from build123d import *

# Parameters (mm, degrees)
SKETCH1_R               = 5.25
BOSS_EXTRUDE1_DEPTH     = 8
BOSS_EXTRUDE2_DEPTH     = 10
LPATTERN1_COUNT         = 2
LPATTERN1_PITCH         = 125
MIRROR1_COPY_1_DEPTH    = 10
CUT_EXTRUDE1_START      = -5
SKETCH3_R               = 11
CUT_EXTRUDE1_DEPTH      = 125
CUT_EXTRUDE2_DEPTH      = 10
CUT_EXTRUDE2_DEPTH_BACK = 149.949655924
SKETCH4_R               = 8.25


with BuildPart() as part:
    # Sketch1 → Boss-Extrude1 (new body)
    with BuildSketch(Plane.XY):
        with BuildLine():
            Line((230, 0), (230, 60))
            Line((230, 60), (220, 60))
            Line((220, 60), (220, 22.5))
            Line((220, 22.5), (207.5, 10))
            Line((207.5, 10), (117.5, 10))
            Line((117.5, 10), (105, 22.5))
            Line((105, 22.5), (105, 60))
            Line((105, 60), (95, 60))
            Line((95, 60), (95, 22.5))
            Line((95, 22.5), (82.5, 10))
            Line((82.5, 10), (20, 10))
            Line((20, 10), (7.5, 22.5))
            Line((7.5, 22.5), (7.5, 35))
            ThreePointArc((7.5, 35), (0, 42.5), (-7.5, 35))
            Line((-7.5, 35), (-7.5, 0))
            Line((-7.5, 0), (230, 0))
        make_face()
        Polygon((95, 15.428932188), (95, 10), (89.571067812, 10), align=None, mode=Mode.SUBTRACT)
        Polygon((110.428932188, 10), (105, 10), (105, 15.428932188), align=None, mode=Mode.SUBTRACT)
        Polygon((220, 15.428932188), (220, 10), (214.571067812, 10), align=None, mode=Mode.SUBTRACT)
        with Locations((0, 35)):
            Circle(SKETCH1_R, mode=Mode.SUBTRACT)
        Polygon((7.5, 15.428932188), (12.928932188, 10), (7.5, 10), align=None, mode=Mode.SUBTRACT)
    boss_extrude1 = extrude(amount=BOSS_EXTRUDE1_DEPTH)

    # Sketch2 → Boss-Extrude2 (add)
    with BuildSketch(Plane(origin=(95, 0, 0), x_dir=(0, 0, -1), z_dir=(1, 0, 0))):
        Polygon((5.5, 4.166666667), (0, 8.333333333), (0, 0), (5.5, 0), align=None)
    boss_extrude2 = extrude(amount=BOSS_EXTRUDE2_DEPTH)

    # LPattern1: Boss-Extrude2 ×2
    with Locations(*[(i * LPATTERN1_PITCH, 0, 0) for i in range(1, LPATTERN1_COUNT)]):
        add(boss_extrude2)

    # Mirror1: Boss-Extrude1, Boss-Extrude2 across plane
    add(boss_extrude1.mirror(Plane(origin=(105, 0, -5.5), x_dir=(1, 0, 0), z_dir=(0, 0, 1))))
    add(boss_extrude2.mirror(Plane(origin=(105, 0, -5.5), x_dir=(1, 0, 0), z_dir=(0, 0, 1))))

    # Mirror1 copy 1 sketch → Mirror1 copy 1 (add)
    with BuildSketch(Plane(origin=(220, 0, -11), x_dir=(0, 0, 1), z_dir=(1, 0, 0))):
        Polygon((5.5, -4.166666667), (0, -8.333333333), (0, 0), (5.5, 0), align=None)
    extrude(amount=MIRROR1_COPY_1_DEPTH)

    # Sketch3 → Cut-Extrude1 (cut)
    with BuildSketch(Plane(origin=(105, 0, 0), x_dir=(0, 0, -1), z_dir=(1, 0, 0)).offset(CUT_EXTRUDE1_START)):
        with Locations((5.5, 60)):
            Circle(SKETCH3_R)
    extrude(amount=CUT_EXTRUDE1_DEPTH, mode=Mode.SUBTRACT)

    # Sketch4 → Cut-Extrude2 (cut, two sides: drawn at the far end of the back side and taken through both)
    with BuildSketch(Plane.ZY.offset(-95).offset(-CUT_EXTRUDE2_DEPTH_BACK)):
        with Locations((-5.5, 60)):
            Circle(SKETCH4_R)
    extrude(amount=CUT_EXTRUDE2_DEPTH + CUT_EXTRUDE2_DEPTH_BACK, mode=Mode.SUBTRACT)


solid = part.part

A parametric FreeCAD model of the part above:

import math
import FreeCAD as App
import Part
import Sketcher
Q = App.Units.Quantity


def add_polygon(sketch, points):
    """Adds a closed chain of lines whose ends are joined by coincident constraints."""
    first, n = sketch.GeometryCount, len(points)
    for a, b in zip(points, points[1:] + points[:1]):
        sketch.addGeometry(Part.LineSegment(App.Vector(*a, 0), App.Vector(*b, 0)), False)
    for i in range(n):
        sketch.addConstraint(Sketcher.Constraint("Coincident", first + i, 2, first + (i + 1) % n, 1))

doc = App.newDocument("Part")
params = doc.addObject("Spreadsheet::Sheet", "Params")
for row, (alias, value) in enumerate([
    ("sketch1_diameter", "10.5 mm"),
    ("sketch1_radius", "7.5 mm"),
    ("sketch1_width", "10 mm"),
    ("sketch1_width2", "90 mm"),
    ("sketch1_height", "60 mm"),
    ("pad1_length", "8 mm"),
    ("sketch2_height", "5.5 mm"),
    ("pad2_length", "10 mm"),
    ("linearpattern_pitch", "125 mm"),
    ("sketch3_height", "5.5 mm"),
    ("pad3_length", "10 mm"),
    ("sketch4_diameter", "22 mm"),
    ("pocket1_length", "125 mm"),
    ("sketch5_diameter", "16.5 mm"),
], start=1):
    params.set(f"A{row}", alias)
    params.set(f"B{row}", "=" + value)
    params.setAlias(f"B{row}", alias)

body = doc.addObject("PartDesign::Body", "Body")

sketch1 = doc.addObject("Sketcher::SketchObject", "Sketch")
body.addObject(sketch1)
sketch1.AttachmentSupport = (doc.XY_Plane, [""])
sketch1.MapMode = "FlatFace"
sketch1.addGeometry(Part.LineSegment(App.Vector(230, 0, 0), App.Vector(230, 60, 0)), False)
sketch1.addGeometry(Part.LineSegment(App.Vector(230, 60, 0), App.Vector(220, 60, 0)), False)
sketch1.addGeometry(Part.LineSegment(App.Vector(220, 60, 0), App.Vector(220, 22.5, 0)), False)
sketch1.addGeometry(Part.LineSegment(App.Vector(220, 22.5, 0), App.Vector(207.5, 10, 0)), False)
sketch1.addGeometry(Part.LineSegment(App.Vector(207.5, 10, 0), App.Vector(117.5, 10, 0)), False)
sketch1.addGeometry(Part.LineSegment(App.Vector(117.5, 10, 0), App.Vector(105, 22.5, 0)), False)
sketch1.addGeometry(Part.LineSegment(App.Vector(105, 22.5, 0), App.Vector(105, 60, 0)), False)
sketch1.addGeometry(Part.LineSegment(App.Vector(105, 60, 0), App.Vector(95, 60, 0)), False)
sketch1.addGeometry(Part.LineSegment(App.Vector(95, 60, 0), App.Vector(95, 22.5, 0)), False)
sketch1.addGeometry(Part.LineSegment(App.Vector(95, 22.5, 0), App.Vector(82.5, 10, 0)), False)
sketch1.addGeometry(Part.LineSegment(App.Vector(82.5, 10, 0), App.Vector(20, 10, 0)), False)
sketch1.addGeometry(Part.LineSegment(App.Vector(20, 10, 0), App.Vector(7.5, 22.5, 0)), False)
sketch1.addGeometry(Part.LineSegment(App.Vector(7.5, 22.5, 0), App.Vector(7.5, 35, 0)), False)
sketch1.addGeometry(Part.ArcOfCircle(Part.Circle(App.Vector(0, 35, 0), App.Vector(0, 0, 1), 7.5), math.radians(0), math.radians(180)), False)
sketch1.addGeometry(Part.LineSegment(App.Vector(-7.5, 35, 0), App.Vector(-7.5, 0, 0)), False)
sketch1.addGeometry(Part.LineSegment(App.Vector(-7.5, 0, 0), App.Vector(230, 0, 0)), False)
add_polygon(sketch1, [(7.5, 10), (7.5, 15.428932), (12.928932, 10)])
add_polygon(sketch1, [(89.571068, 10), (95, 15.428932), (95, 10)])
add_polygon(sketch1, [(105, 15.428932), (110.428932, 10), (105, 10)])
add_polygon(sketch1, [(214.571068, 10), (220, 15.428932), (220, 10)])
sketch1.addGeometry(Part.Circle(App.Vector(0, 35, 0), App.Vector(0, 0, 1), 5.25), False)
sketch1.addConstraint(Sketcher.Constraint("Coincident", 0, 2, 1, 1))
sketch1.addConstraint(Sketcher.Constraint("Coincident", 1, 2, 2, 1))
sketch1.addConstraint(Sketcher.Constraint("Coincident", 2, 2, 3, 1))
sketch1.addConstraint(Sketcher.Constraint("Coincident", 3, 2, 4, 1))
sketch1.addConstraint(Sketcher.Constraint("Coincident", 4, 2, 5, 1))
sketch1.addConstraint(Sketcher.Constraint("Coincident", 5, 2, 6, 1))
sketch1.addConstraint(Sketcher.Constraint("Coincident", 6, 2, 7, 1))
sketch1.addConstraint(Sketcher.Constraint("Coincident", 7, 2, 8, 1))
sketch1.addConstraint(Sketcher.Constraint("Coincident", 8, 2, 9, 1))
sketch1.addConstraint(Sketcher.Constraint("Coincident", 9, 2, 10, 1))
sketch1.addConstraint(Sketcher.Constraint("Coincident", 10, 2, 11, 1))
sketch1.addConstraint(Sketcher.Constraint("Coincident", 11, 2, 12, 1))
sketch1.addConstraint(Sketcher.Constraint("Tangent", 12, 2, 13, 1))
sketch1.addConstraint(Sketcher.Constraint("Tangent", 13, 2, 14, 1))
sketch1.addConstraint(Sketcher.Constraint("Coincident", 14, 2, 15, 1))
sketch1.addConstraint(Sketcher.Constraint("Coincident", 15, 2, 0, 1))
sketch1.addConstraint(Sketcher.Constraint("Vertical", 0))
sketch1.addConstraint(Sketcher.Constraint("Horizontal", 1))
sketch1.addConstraint(Sketcher.Constraint("Vertical", 2))
sketch1.addConstraint(Sketcher.Constraint("Horizontal", 4))
sketch1.addConstraint(Sketcher.Constraint("Vertical", 6))
sketch1.addConstraint(Sketcher.Constraint("Horizontal", 7))
sketch1.addConstraint(Sketcher.Constraint("Vertical", 8))
sketch1.addConstraint(Sketcher.Constraint("Horizontal", 10))
sketch1.addConstraint(Sketcher.Constraint("Vertical", 12))
sketch1.addConstraint(Sketcher.Constraint("Vertical", 14))
sketch1.addConstraint(Sketcher.Constraint("Horizontal", 15))
sketch1.addConstraint(Sketcher.Constraint("Vertical", 16))
sketch1.addConstraint(Sketcher.Constraint("Horizontal", 18))
sketch1.addConstraint(Sketcher.Constraint("Vertical", 20))
sketch1.addConstraint(Sketcher.Constraint("Horizontal", 21))
sketch1.addConstraint(Sketcher.Constraint("Horizontal", 23))
sketch1.addConstraint(Sketcher.Constraint("Vertical", 24))
sketch1.addConstraint(Sketcher.Constraint("Vertical", 26))
sketch1.addConstraint(Sketcher.Constraint("Horizontal", 27))
sketch1.addConstraint(Sketcher.Constraint("Coincident", 28, 3, 13, 3))
sketch1.addConstraint(Sketcher.Constraint("PointOnObject", 13, 3, -2))
sketch1.addConstraint(Sketcher.Constraint("PointOnObject", 14, 2, -1))
sketch1.addConstraint(Sketcher.Constraint("Perpendicular", 3, 5))
sketch1.addConstraint(Sketcher.Constraint("Perpendicular", 5, 9))
sketch1.addConstraint(Sketcher.Constraint("Perpendicular", 9, 11))
sketch1.addConstraint(Sketcher.Constraint("Parallel", 11, 17))
sketch1.addConstraint(Sketcher.Constraint("Perpendicular", 17, 19))
sketch1.addConstraint(Sketcher.Constraint("Perpendicular", 19, 22))
sketch1.addConstraint(Sketcher.Constraint("Perpendicular", 22, 25))
sketch1.addConstraint(Sketcher.Constraint("Horizontal", 2, 2, 5, 2))
sketch1.addConstraint(Sketcher.Constraint("Horizontal", 1, 2, 6, 2))
sketch1.addConstraint(Sketcher.Constraint("Horizontal", 5, 2, 8, 2))
sketch1.addConstraint(Sketcher.Constraint("Horizontal", 4, 2, 9, 2))
sketch1.addConstraint(Sketcher.Constraint("Horizontal", 8, 2, 11, 2))
sketch1.addConstraint(Sketcher.Constraint("Horizontal", 10, 2, 17, 2))
sketch1.addConstraint(Sketcher.Constraint("Horizontal", 16, 2, 19, 2))
sketch1.addConstraint(Sketcher.Constraint("Horizontal", 18, 2, 20, 2))
sketch1.addConstraint(Sketcher.Constraint("Horizontal", 21, 2, 22, 2))
sketch1.addConstraint(Sketcher.Constraint("Horizontal", 19, 2, 24, 2))
sketch1.addConstraint(Sketcher.Constraint("Horizontal", 24, 2, 25, 2))
sketch1.addConstraint(Sketcher.Constraint("Horizontal", 23, 2, 26, 2))
sketch1.addConstraint(Sketcher.Constraint("Vertical", 12, 2, 16, 2))
sketch1.addConstraint(Sketcher.Constraint("Vertical", 8, 2, 19, 2))
sketch1.addConstraint(Sketcher.Constraint("Vertical", 6, 2, 23, 2))
sketch1.addConstraint(Sketcher.Constraint("Vertical", 2, 2, 25, 2))
sketch1.addConstraint(Sketcher.Constraint("Equal", 1, 7))
sketch1.addConstraint(Sketcher.Constraint("Equal", 18, 21))
sketch1.addConstraint(Sketcher.Constraint("Diameter", 28, Q("10.5 mm")))
sketch1.addConstraint(Sketcher.Constraint("Radius", 13, Q("7.5 mm")))
sketch1.addConstraint(Sketcher.Constraint("DistanceX", 1, 2, 1, 1, Q("10 mm")))
sketch1.addConstraint(Sketcher.Constraint("DistanceX", 4, 2, 4, 1, Q("90 mm")))
sketch1.addConstraint(Sketcher.Constraint("DistanceY", 0, 1, 0, 2, Q("60 mm")))
sketch1.addConstraint(Sketcher.Constraint("DistanceY", 14, 2, 14, 1, Q("35 mm")))
sketch1.addConstraint(Sketcher.Constraint("DistanceX", 10, 2, 10, 1, Q("62.5 mm")))
sketch1.addConstraint(Sketcher.Constraint("DistanceX", 15, 1, 15, 2, Q("237.5 mm")))
sketch1.addConstraint(Sketcher.Constraint("DistanceY", 2, 2, 2, 1, Q("37.5 mm")))
sketch1.addConstraint(Sketcher.Constraint("Distance", 17, Q("7.67767 mm")))
sketch1.setExpression("Constraints[75]", "Params.sketch1_diameter")
sketch1.setExpression("Constraints[76]", "Params.sketch1_radius")
sketch1.setExpression("Constraints[77]", "Params.sketch1_width")
sketch1.setExpression("Constraints[78]", "Params.sketch1_width2")
sketch1.setExpression("Constraints[79]", "Params.sketch1_height")
pad1 = doc.addObject("PartDesign::Pad", "Pad")
body.addObject(pad1)
pad1.Profile = sketch1
pad1.setExpression("Length", "Params.pad1_length")

sketch2 = doc.addObject("Sketcher::SketchObject", "Sketch001")
body.addObject(sketch2)
sketch2.AttachmentSupport = (doc.YZ_Plane, [""])
sketch2.MapMode = "FlatFace"
sketch2.AttachmentOffset = App.Placement(App.Vector(0, 0, 95), App.Rotation())
add_polygon(sketch2, [(4.166667, -5.5), (8.333333, 0), (0, 0), (0, -5.5)])
sketch2.addConstraint(Sketcher.Constraint("Horizontal", 1))
sketch2.addConstraint(Sketcher.Constraint("Vertical", 2))
sketch2.addConstraint(Sketcher.Constraint("Horizontal", 3))
sketch2.addConstraint(Sketcher.Constraint("Coincident", 1, 2, -1, 1))
sketch2.addConstraint(Sketcher.Constraint("DistanceY", 2, 2, 2, 1, Q("5.5 mm")))
sketch2.addConstraint(Sketcher.Constraint("Distance", 0, Q("6.900081 mm")))
sketch2.addConstraint(Sketcher.Constraint("DistanceX", 1, 2, 1, 1, Q("8.333333 mm")))
sketch2.setExpression("Constraints[8]", "Params.sketch2_height")
pad2 = doc.addObject("PartDesign::Pad", "Pad001")
body.addObject(pad2)
pad2.Profile = sketch2
pad2.setExpression("Length", "Params.pad2_length")
doc.recompute()

linearpattern = doc.addObject("PartDesign::LinearPattern", "LinearPattern")
body.addObject(linearpattern)
linearpattern.Originals = [pad2]
linearpattern.Direction = (doc.X_Axis, [""])
linearpattern.Mode = "offset"
linearpattern.setExpression("Offset", "Params.linearpattern_pitch")
linearpattern.Occurrences = 2
body.Tip = linearpattern
doc.recompute()

datumplane = doc.addObject("PartDesign::Plane", "DatumPlane")
body.addObject(datumplane)
datumplane.AttachmentSupport = (doc.XY_Plane, [""])
datumplane.MapMode = "FlatFace"
datumplane.AttachmentOffset = App.Placement(App.Vector(0, 0, -5.5), App.Rotation())
mirrored = doc.addObject("PartDesign::Mirrored", "Mirrored")
body.addObject(mirrored)
mirrored.Originals = [pad1, pad2]
mirrored.MirrorPlane = (datumplane, [""])
body.Tip = mirrored

sketch3 = doc.addObject("Sketcher::SketchObject", "Sketch002")
body.addObject(sketch3)
sketch3.AttachmentSupport = (doc.YZ_Plane, [""])
sketch3.MapMode = "FlatFace"
sketch3.AttachmentOffset = App.Placement(App.Vector(0, 0, 220), App.Rotation())
add_polygon(sketch3, [(8.333333, -11), (4.166667, -5.5), (0, -5.5), (0, -11)])
sketch3.addConstraint(Sketcher.Constraint("Horizontal", 1))
sketch3.addConstraint(Sketcher.Constraint("Vertical", 2))
sketch3.addConstraint(Sketcher.Constraint("Horizontal", 3))
sketch3.addConstraint(Sketcher.Constraint("PointOnObject", 1, 2, -2))
sketch3.addConstraint(Sketcher.Constraint("DistanceY", 2, 2, 2, 1, Q("5.5 mm")))
sketch3.addConstraint(Sketcher.Constraint("DistanceY", 2, 2, -1, 1, Q("11 mm")))
sketch3.addConstraint(Sketcher.Constraint("Distance", 0, Q("6.900081 mm")))
sketch3.addConstraint(Sketcher.Constraint("DistanceX", 1, 2, 1, 1, Q("4.166667 mm")))
sketch3.setExpression("Constraints[8]", "Params.sketch3_height")
pad3 = doc.addObject("PartDesign::Pad", "Pad002")
body.addObject(pad3)
pad3.Profile = sketch3
pad3.setExpression("Length", "Params.pad3_length")

sketch4 = doc.addObject("Sketcher::SketchObject", "Sketch003")
body.addObject(sketch4)
sketch4.AttachmentSupport = (doc.YZ_Plane, [""])
sketch4.MapMode = "FlatFace"
sketch4.AttachmentOffset = App.Placement(App.Vector(0, 0, 100), App.Rotation())
sketch4.addGeometry(Part.Circle(App.Vector(60, -5.5, 0), App.Vector(0, 0, 1), 11), False)
sketch4.addConstraint(Sketcher.Constraint("Diameter", 0, Q("22 mm")))
sketch4.addConstraint(Sketcher.Constraint("DistanceX", -1, 1, 0, 3, Q("60 mm")))
sketch4.addConstraint(Sketcher.Constraint("DistanceY", 0, 3, -1, 1, Q("5.5 mm")))
sketch4.setExpression("Constraints[0]", "Params.sketch4_diameter")
pocket1 = doc.addObject("PartDesign::Pocket", "Pocket")
body.addObject(pocket1)
pocket1.Profile = sketch4
pocket1.setExpression("Length", "Params.pocket1_length")
pocket1.Reversed = True

sketch5 = doc.addObject("Sketcher::SketchObject", "Sketch004")
body.addObject(sketch5)
sketch5.AttachmentSupport = (doc.YZ_Plane, [""])
sketch5.MapMode = "FlatFace"
sketch5.AttachmentOffset = App.Placement(App.Vector(0, 0, 95), App.Rotation())
sketch5.addGeometry(Part.Circle(App.Vector(60, -5.5, 0), App.Vector(0, 0, 1), 8.25), False)
sketch5.addConstraint(Sketcher.Constraint("Diameter", 0, Q("16.5 mm")))
sketch5.addConstraint(Sketcher.Constraint("DistanceX", -1, 1, 0, 3, Q("60 mm")))
sketch5.addConstraint(Sketcher.Constraint("DistanceY", 0, 3, -1, 1, Q("5.5 mm")))
sketch5.setExpression("Constraints[0]", "Params.sketch5_diameter")
pocket2 = doc.addObject("PartDesign::Pocket", "Pocket001")
body.addObject(pocket2)
pocket2.Profile = sketch5
pocket2.Type = "ThroughAll"
pocket2.Midplane = True

doc.recompute()
